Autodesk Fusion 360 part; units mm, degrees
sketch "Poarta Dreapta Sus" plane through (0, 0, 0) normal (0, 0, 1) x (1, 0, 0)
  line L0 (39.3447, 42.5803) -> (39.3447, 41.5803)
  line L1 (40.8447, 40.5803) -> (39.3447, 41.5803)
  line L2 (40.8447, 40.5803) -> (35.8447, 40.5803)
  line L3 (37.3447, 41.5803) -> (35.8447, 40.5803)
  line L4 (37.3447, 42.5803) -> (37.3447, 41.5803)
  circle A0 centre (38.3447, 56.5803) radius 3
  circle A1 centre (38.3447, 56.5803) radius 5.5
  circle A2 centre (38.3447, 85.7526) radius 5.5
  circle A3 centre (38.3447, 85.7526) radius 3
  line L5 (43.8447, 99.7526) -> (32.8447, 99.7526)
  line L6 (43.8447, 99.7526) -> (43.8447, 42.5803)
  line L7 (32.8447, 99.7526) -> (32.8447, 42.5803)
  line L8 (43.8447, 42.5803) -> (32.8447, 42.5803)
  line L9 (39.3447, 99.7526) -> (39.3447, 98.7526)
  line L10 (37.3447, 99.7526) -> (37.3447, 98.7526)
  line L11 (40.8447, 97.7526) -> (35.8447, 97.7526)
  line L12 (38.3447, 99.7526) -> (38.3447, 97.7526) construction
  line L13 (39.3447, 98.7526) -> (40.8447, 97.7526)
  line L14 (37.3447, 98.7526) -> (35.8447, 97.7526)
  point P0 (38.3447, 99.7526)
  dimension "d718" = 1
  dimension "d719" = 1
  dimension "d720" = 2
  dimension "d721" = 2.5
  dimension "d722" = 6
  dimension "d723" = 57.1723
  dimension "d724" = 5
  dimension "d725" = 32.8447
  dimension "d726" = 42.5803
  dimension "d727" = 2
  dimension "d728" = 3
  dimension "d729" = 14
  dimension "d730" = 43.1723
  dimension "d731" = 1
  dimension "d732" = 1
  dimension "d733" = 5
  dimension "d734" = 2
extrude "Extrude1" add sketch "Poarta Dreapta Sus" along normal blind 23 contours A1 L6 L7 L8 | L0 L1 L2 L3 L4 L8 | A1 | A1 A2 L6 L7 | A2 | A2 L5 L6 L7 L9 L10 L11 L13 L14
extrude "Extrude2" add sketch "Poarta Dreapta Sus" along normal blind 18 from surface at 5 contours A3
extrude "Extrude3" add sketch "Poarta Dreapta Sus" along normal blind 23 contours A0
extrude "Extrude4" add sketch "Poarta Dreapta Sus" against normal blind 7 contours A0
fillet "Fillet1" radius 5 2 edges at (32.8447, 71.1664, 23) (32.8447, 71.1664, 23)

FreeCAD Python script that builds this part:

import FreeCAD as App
import Part
import Sketcher


def edges_at(feature, points):
    """Names of the edges that pass closest to the given points."""
    edges = feature.Shape.Edges
    near = lambda p: min(range(len(edges)), key=lambda i: edges[i].distToShape(Part.Vertex(*p))[0])
    return sorted({f"Edge{near(p) + 1}" for p in points})

doc = App.newDocument("Part")
body = doc.addObject("PartDesign::Body", "Body")

sketch1 = body.newObject("Sketcher::SketchObject", "Sketch")
sketch1.AttachmentSupport = (doc.getObject("XY_Plane"), [""])
sketch1.MapMode = "FlatFace"
sketch1.addGeometry([
    Part.LineSegment(App.Vector(32.8, 42.6, 0), App.Vector(37.3, 42.6, 0)),
    Part.LineSegment(App.Vector(37.3, 42.6, 0), App.Vector(37.3, 41.6, 0)),
    Part.LineSegment(App.Vector(37.3, 41.6, 0), App.Vector(35.8, 40.6, 0)),
    Part.LineSegment(App.Vector(35.8, 40.6, 0), App.Vector(40.8, 40.6, 0)),
    Part.LineSegment(App.Vector(40.8, 40.6, 0), App.Vector(39.3, 41.6, 0)),
    Part.LineSegment(App.Vector(39.3, 41.6, 0), App.Vector(39.3, 42.6, 0)),
    Part.LineSegment(App.Vector(39.3, 42.6, 0), App.Vector(43.8, 42.6, 0)),
    Part.LineSegment(App.Vector(43.8, 42.6, 0), App.Vector(43.8, 99.8, 0)),
    Part.LineSegment(App.Vector(43.8, 99.8, 0), App.Vector(39.3, 99.8, 0)),
    Part.LineSegment(App.Vector(39.3, 99.8, 0), App.Vector(39.3, 98.8, 0)),
    Part.LineSegment(App.Vector(39.3, 98.8, 0), App.Vector(40.8, 97.8, 0)),
    Part.LineSegment(App.Vector(40.8, 97.8, 0), App.Vector(35.8, 97.8, 0)),
    Part.LineSegment(App.Vector(35.8, 97.8, 0), App.Vector(37.3, 98.8, 0)),
    Part.LineSegment(App.Vector(37.3, 98.8, 0), App.Vector(37.3, 99.8, 0)),
    Part.LineSegment(App.Vector(37.3, 99.8, 0), App.Vector(32.8, 99.8, 0)),
    Part.LineSegment(App.Vector(32.8, 99.8, 0), App.Vector(32.8, 42.6, 0)),
    Part.Circle(App.Vector(38.3, 56.6, 0), App.Vector(0, 0, 1), 3),
    Part.Circle(App.Vector(38.3, 85.8, 0), App.Vector(0, 0, 1), 3),
], False)
sketch1.addConstraint([
    Sketcher.Constraint("Coincident", 0, 2, 1, 1),
    Sketcher.Constraint("Coincident", 1, 2, 2, 1),
    Sketcher.Constraint("Coincident", 2, 2, 3, 1),
    Sketcher.Constraint("Coincident", 3, 2, 4, 1),
    Sketcher.Constraint("Coincident", 4, 2, 5, 1),
    Sketcher.Constraint("Coincident", 5, 2, 6, 1),
    Sketcher.Constraint("Coincident", 6, 2, 7, 1),
    Sketcher.Constraint("Coincident", 7, 2, 8, 1),
    Sketcher.Constraint("Coincident", 8, 2, 9, 1),
    Sketcher.Constraint("Coincident", 9, 2, 10, 1),
    Sketcher.Constraint("Coincident", 10, 2, 11, 1),
    Sketcher.Constraint("Coincident", 11, 2, 12, 1),
    Sketcher.Constraint("Coincident", 12, 2, 13, 1),
    Sketcher.Constraint("Coincident", 13, 2, 14, 1),
    Sketcher.Constraint("Coincident", 14, 2, 15, 1),
    Sketcher.Constraint("Coincident", 15, 2, 0, 1),
    Sketcher.Constraint("Horizontal", 0),
    Sketcher.Constraint("Vertical", 1),
    Sketcher.Constraint("Horizontal", 3),
    Sketcher.Constraint("Vertical", 5),
    Sketcher.Constraint("Horizontal", 6),
    Sketcher.Constraint("Vertical", 7),
    Sketcher.Constraint("Horizontal", 8),
    Sketcher.Constraint("Vertical", 9),
    Sketcher.Constraint("Horizontal", 11),
    Sketcher.Constraint("Vertical", 13),
    Sketcher.Constraint("Horizontal", 14),
    Sketcher.Constraint("Vertical", 15),
    Sketcher.Constraint("Equal", 16, 17),
    Sketcher.Constraint("Parallel", 4, 10),
    Sketcher.Constraint("Parallel", 2, 12),
    Sketcher.Constraint("Horizontal", 1, 2, 4, 2),
    Sketcher.Constraint("Horizontal", 0, 2, 5, 2),
    Sketcher.Constraint("Horizontal", 9, 2, 12, 2),
    Sketcher.Constraint("Horizontal", 8, 2, 13, 2),
    Sketcher.Constraint("Vertical", 16, 3, 17, 3),
    Sketcher.Constraint("Vertical", 5, 2, 8, 2),
    Sketcher.Constraint("Vertical", 3, 2, 10, 2),
    Sketcher.Constraint("Vertical", 2, 2, 11, 2),
    Sketcher.Constraint("Equal", 0, 6),
    Sketcher.Constraint("Equal", 5, 9),
    Sketcher.Constraint("Equal", 2, 4),
    Sketcher.Constraint("Diameter", 16, 6.0),
    Sketcher.Constraint("DistanceX", 3, 1, 3, 2, 5.0),
    Sketcher.Constraint("DistanceY", 1, 2, 1, 1, 1.0),
    Sketcher.Constraint("DistanceX", 0, 2, 16, 3, 1.0),
    Sketcher.Constraint("DistanceY", 0, 2, 16, 3, 14.0),
    Sketcher.Constraint("DistanceY", 2, 2, 1, 2, 1.0),
    Sketcher.Constraint("DistanceX", 1, 2, 4, 2, 2.0),
    Sketcher.Constraint("DistanceX", 3, 2, 6, 2, 3.0),
    Sketcher.Constraint("DistanceY", 17, 3, 7, 2, 14.0),
    Sketcher.Constraint("DistanceY", 7, 1, 7, 2, 57.1723),
    Sketcher.Constraint("DistanceY", -1, 1, 0, 2, 42.5803),
    Sketcher.Constraint("DistanceX", -1, 1, 14, 2, 32.8447),
])
pad1 = body.newObject("PartDesign::Pad", "Pad")
pad1.Profile = sketch1
pad1.Length = 23

sketch2 = body.newObject("Sketcher::SketchObject", "Sketch001")
sketch2.AttachmentSupport = (doc.getObject("XY_Plane"), [""])
sketch2.MapMode = "FlatFace"
sketch2.AttachmentOffset = App.Placement(App.Vector(0, 0, 5), App.Rotation())
sketch2.addGeometry(Part.Circle(App.Vector(38.3, 85.8, 0), App.Vector(0, 0, 1), 3), False)
sketch2.addConstraint([
    Sketcher.Constraint("Diameter", 0, 6.0),
    Sketcher.Constraint("DistanceX", -1, 1, 0, 3, 38.3447),
    Sketcher.Constraint("DistanceY", -1, 1, 0, 3, 85.7526),
])
pad2 = body.newObject("PartDesign::Pad", "Pad001")
pad2.Profile = sketch2
pad2.Length = 18

sketch3 = body.newObject("Sketcher::SketchObject", "Sketch002")
sketch3.AttachmentSupport = (doc.getObject("XY_Plane"), [""])
sketch3.MapMode = "FlatFace"
sketch3.addGeometry(Part.Circle(App.Vector(38.3, 56.6, 0), App.Vector(0, 0, 1), 3), False)
sketch3.addConstraint([
    Sketcher.Constraint("Diameter", 0, 6.0),
    Sketcher.Constraint("DistanceX", -1, 1, 0, 3, 38.3447),
    Sketcher.Constraint("DistanceY", -1, 1, 0, 3, 56.5803),
])
pad3 = body.newObject("PartDesign::Pad", "Pad002")
pad3.Profile = sketch3
pad3.Length = 23

sketch4 = body.newObject("Sketcher::SketchObject", "Sketch003")
sketch4.AttachmentSupport = (doc.getObject("XY_Plane"), [""])
sketch4.MapMode = "FlatFace"
sketch4.addGeometry(Part.Circle(App.Vector(38.3, 56.6, 0), App.Vector(0, 0, 1), 3), False)
sketch4.addConstraint([
    Sketcher.Constraint("Diameter", 0, 6.0),
    Sketcher.Constraint("DistanceX", -1, 1, 0, 3, 38.3447),
    Sketcher.Constraint("DistanceY", -1, 1, 0, 3, 56.5803),
])
pad4 = body.newObject("PartDesign::Pad", "Pad003")
pad4.Profile = sketch4
pad4.Length = 7
pad4.Reversed = True
doc.recompute()

fillet = body.newObject("PartDesign::Fillet", "Fillet")
fillet.Base = (pad4, edges_at(pad4, [(32.845, 71.166, 23), (32.845, 71.166, 23)]))
fillet.Radius = 5

doc.recompute()
